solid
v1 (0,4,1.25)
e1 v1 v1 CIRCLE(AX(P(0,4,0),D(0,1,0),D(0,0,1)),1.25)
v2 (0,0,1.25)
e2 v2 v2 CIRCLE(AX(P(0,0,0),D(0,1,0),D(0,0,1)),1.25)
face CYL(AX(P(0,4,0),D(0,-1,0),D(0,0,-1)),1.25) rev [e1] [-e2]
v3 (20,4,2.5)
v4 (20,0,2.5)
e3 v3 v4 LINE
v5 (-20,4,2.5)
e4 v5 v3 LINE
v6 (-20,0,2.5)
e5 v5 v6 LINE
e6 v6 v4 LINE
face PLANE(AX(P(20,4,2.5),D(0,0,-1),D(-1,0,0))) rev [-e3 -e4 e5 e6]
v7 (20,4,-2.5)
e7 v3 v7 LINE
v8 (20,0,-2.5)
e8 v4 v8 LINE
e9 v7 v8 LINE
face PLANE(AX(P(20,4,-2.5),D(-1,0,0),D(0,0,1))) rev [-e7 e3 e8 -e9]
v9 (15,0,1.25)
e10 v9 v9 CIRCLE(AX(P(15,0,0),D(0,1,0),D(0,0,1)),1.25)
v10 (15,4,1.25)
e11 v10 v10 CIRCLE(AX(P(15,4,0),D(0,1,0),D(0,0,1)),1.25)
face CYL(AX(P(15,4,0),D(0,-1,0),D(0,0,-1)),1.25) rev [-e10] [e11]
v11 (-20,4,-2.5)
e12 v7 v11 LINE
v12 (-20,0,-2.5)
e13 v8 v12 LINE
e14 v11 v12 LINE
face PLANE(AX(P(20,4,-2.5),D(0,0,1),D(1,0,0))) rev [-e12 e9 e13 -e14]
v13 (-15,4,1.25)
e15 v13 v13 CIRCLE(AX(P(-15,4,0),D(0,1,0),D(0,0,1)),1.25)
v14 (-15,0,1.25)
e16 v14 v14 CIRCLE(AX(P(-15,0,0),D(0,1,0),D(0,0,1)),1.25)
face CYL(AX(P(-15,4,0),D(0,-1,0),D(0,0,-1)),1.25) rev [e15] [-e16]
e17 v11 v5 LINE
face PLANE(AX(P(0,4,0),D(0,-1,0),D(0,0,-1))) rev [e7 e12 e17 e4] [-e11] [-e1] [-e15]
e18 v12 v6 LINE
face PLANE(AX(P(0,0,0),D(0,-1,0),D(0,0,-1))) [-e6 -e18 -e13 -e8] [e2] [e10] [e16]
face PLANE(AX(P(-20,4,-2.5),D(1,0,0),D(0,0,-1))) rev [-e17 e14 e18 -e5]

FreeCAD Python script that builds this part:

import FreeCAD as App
import Part
import Sketcher

V = App.Vector


def add_polygon(sketch, points):
    """Adds a closed chain of lines whose ends are joined by coincident constraints."""
    first, n = sketch.GeometryCount, len(points)
    for a, b in zip(points, points[1:] + points[:1]):
        sketch.addGeometry(Part.LineSegment(App.Vector(*a, 0), App.Vector(*b, 0)), False)
    for i in range(n):
        sketch.addConstraint(Sketcher.Constraint("Coincident", first + i, 2, first + (i + 1) % n, 1))

doc = App.newDocument("Part")
params = doc.addObject("Spreadsheet::Sheet", "Params")
for row, (alias, value) in enumerate([
    ("sketch1_diameter", "2.5 mm"),
    ("sketch1_width", "40 mm"),
    ("sketch1_height", "5 mm"),
    ("pad1_length", "4 mm"),
], start=1):
    params.set(f"A{row}", alias)
    params.set(f"B{row}", "=" + value)
    params.setAlias(f"B{row}", alias)

body = doc.addObject("PartDesign::Body", "Body")

# Sketch on XZ plane
sketch1 = doc.addObject("Sketcher::SketchObject", "Sketch")
body.addObject(sketch1)
sketch1.AttachmentSupport = (doc.XZ_Plane, [""])
sketch1.MapMode = "FlatFace"
add_polygon(sketch1, [(-20, -2.5), (-20, 2.5), (20, 2.5), (20, -2.5)])  # lines 0-3
sketch1.addGeometry(Part.Circle(V(-15, 0, 0), V(0, 0, 1), 1.25), False)  # 4
sketch1.addGeometry(Part.Circle(V(0, 0, 0), V(0, 0, 1), 1.25), False)  # 5
sketch1.addGeometry(Part.Circle(V(15, 0, 0), V(0, 0, 1), 1.25), False)  # 6
sketch1.addConstraint([
    Sketcher.Constraint("Vertical", 0),
    Sketcher.Constraint("Horizontal", 1),
    Sketcher.Constraint("Vertical", 2),
    Sketcher.Constraint("Horizontal", 3),
    Sketcher.Constraint("Coincident", 5, 3, -1, 1),
    Sketcher.Constraint("Equal", 4, 5),
    Sketcher.Constraint("Equal", 5, 6),
    Sketcher.Constraint("Symmetric", 4, 3, 6, 3, -1, 1),
    Sketcher.Constraint("Symmetric", 0, 2, 2, 2, -1, 1),
    Sketcher.Constraint("PointOnObject", 4, 3, -1),
    Sketcher.Constraint("Diameter", 4, 2.5),
    Sketcher.Constraint("DistanceX", 1, 1, 1, 2, 40.0),
    Sketcher.Constraint("DistanceY", 0, 1, 0, 2, 5.0),
    Sketcher.Constraint("DistanceX", 4, 3, -1, 1, 15.0),
])
sketch1.setExpression("Constraints[14]", "Params.sketch1_diameter")
sketch1.setExpression("Constraints[15]", "Params.sketch1_width")
sketch1.setExpression("Constraints[16]", "Params.sketch1_height")
pad1 = doc.addObject("PartDesign::Pad", "Pad")
body.addObject(pad1)
pad1.Profile = sketch1
pad1.setExpression("Length", "Params.pad1_length")
pad1.Reversed = True

doc.recompute()
